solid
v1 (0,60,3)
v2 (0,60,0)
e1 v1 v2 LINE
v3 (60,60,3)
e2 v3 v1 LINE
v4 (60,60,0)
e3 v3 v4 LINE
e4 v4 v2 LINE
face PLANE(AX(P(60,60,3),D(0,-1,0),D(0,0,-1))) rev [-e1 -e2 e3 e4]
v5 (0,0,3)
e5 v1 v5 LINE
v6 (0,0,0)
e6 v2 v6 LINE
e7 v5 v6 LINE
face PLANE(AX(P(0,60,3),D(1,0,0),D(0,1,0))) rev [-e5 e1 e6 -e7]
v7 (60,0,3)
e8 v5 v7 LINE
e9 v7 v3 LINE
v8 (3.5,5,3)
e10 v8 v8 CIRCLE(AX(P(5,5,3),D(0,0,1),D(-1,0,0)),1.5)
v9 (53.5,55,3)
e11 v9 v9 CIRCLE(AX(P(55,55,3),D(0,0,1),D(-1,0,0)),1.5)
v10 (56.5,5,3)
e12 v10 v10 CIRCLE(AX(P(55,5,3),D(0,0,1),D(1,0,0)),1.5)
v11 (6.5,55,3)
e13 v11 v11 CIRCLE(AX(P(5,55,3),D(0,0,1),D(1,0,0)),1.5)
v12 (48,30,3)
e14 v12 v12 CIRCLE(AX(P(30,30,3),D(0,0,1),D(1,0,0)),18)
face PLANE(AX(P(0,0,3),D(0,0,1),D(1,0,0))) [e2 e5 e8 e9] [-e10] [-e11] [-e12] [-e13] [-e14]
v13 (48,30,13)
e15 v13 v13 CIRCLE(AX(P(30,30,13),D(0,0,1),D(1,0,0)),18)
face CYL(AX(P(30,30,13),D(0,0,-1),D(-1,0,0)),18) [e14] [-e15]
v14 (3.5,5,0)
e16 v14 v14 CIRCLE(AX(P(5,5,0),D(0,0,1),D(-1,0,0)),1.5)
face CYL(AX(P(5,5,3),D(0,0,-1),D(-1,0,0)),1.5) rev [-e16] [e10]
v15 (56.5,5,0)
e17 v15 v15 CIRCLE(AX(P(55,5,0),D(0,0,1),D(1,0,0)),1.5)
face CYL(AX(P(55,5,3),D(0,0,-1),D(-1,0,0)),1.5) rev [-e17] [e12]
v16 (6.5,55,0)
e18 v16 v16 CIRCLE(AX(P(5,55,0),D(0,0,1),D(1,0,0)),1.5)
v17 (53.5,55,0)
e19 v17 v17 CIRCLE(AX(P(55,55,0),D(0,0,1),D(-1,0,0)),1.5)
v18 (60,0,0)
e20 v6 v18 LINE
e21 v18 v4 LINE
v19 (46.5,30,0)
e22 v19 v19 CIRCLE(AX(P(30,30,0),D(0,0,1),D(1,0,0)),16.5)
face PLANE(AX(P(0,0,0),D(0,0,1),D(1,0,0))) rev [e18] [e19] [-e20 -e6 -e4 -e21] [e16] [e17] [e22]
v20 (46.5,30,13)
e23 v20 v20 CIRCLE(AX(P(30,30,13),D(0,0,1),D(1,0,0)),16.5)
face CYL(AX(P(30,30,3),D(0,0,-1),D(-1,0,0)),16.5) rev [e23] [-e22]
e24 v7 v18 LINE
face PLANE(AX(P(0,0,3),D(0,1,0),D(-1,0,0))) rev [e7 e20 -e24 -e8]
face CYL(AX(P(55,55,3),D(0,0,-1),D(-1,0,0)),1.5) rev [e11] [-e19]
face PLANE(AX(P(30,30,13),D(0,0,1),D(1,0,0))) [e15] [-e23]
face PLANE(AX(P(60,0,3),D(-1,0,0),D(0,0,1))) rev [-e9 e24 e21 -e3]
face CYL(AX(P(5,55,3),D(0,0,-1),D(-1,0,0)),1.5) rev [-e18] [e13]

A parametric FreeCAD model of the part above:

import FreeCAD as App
import Part
import Sketcher
Q = App.Units.Quantity


def add_polygon(sketch, points):
    """Adds a closed chain of lines whose ends are joined by coincident constraints."""
    first, n = sketch.GeometryCount, len(points)
    for a, b in zip(points, points[1:] + points[:1]):
        sketch.addGeometry(Part.LineSegment(App.Vector(*a, 0), App.Vector(*b, 0)), False)
    for i in range(n):
        sketch.addConstraint(Sketcher.Constraint("Coincident", first + i, 2, first + (i + 1) % n, 1))

doc = App.newDocument("Part")
body = doc.addObject("PartDesign::Body", "Body")

# Sketch on XY plane
sketch1 = body.newObject("Sketcher::SketchObject", "Sketch")
sketch1.AttachmentSupport = (doc.getObject("XY_Plane"), [""])
sketch1.MapMode = "FlatFace"
add_polygon(sketch1, [(0, 60), (0, 0), (60, 0), (60, 60)])  # lines 0-3
sketch1.addGeometry(Part.Circle(App.Vector(5, 5, 0), App.Vector(0, 0, 1), 1.5), False)  # 4
sketch1.addGeometry(Part.Circle(App.Vector(55, 5, 0), App.Vector(0, 0, 1), 1.5), False)  # 5
sketch1.addGeometry(Part.Circle(App.Vector(5, 55, 0), App.Vector(0, 0, 1), 1.5), False)  # 6
sketch1.addGeometry(Part.Circle(App.Vector(30, 30, 0), App.Vector(0, 0, 1), 16.5), False)  # 7
sketch1.addGeometry(Part.Circle(App.Vector(55, 55, 0), App.Vector(0, 0, 1), 1.5), False)  # 8
sketch1.addConstraint([
    Sketcher.Constraint("Vertical", 0),
    Sketcher.Constraint("Horizontal", 1),
    Sketcher.Constraint("Vertical", 2),
    Sketcher.Constraint("Horizontal", 3),
    Sketcher.Constraint("Coincident", 0, 2, -1, 1),
    Sketcher.Constraint("Equal", 4, 5),
    Sketcher.Constraint("Equal", 5, 6),
    Sketcher.Constraint("Equal", 6, 8),
    Sketcher.Constraint("Horizontal", 4, 3, 5, 3),
    Sketcher.Constraint("Horizontal", 6, 3, 8, 3),
    Sketcher.Constraint("Vertical", 4, 3, 6, 3),
    Sketcher.Constraint("Vertical", 5, 3, 8, 3),
    Sketcher.Constraint("Equal", 3, 0),
    Sketcher.Constraint("Diameter", 4, Q("3 mm")),
    Sketcher.Constraint("Diameter", 7, Q("33 mm")),
    Sketcher.Constraint("DistanceX", 1, 1, 1, 2, Q("60 mm")),
    Sketcher.Constraint("DistanceX", -1, 1, 4, 3, Q("5 mm")),
    Sketcher.Constraint("DistanceY", -1, 1, 4, 3, Q("5 mm")),
    Sketcher.Constraint("DistanceX", -1, 1, 5, 3, Q("55 mm")),
    Sketcher.Constraint("DistanceY", -1, 1, 6, 3, Q("55 mm")),
    Sketcher.Constraint("DistanceX", -1, 1, 7, 3, Q("30 mm")),
    Sketcher.Constraint("DistanceY", -1, 1, 7, 3, Q("30 mm")),
])
pad1 = body.newObject("PartDesign::Pad", "Pad")
pad1.Profile = sketch1
pad1.Length = 3

# Sketch on XY plane
sketch2 = body.newObject("Sketcher::SketchObject", "Sketch001")
sketch2.AttachmentSupport = (doc.getObject("XY_Plane"), [""])
sketch2.MapMode = "FlatFace"
sketch2.AttachmentOffset = App.Placement(App.Vector(0, 0, 3), App.Rotation())
sketch2.addGeometry([
    Part.Circle(App.Vector(30, 30, 0), App.Vector(0, 0, 1), 18),
    Part.Circle(App.Vector(30, 30, 0), App.Vector(0, 0, 1), 16),
], False)
sketch2.addConstraint([
    Sketcher.Constraint("Coincident", 1, 3, 0, 3),
    Sketcher.Constraint("Diameter", 0, Q("36 mm")),
    Sketcher.Constraint("Diameter", 1, Q("33 mm")),
    Sketcher.Constraint("DistanceX", -1, 1, 0, 3, Q("30 mm")),
    Sketcher.Constraint("DistanceY", -1, 1, 0, 3, Q("30 mm")),
])
pad2 = body.newObject("PartDesign::Pad", "Pad001")
pad2.Profile = sketch2
pad2.Length = 10

doc.recompute()
